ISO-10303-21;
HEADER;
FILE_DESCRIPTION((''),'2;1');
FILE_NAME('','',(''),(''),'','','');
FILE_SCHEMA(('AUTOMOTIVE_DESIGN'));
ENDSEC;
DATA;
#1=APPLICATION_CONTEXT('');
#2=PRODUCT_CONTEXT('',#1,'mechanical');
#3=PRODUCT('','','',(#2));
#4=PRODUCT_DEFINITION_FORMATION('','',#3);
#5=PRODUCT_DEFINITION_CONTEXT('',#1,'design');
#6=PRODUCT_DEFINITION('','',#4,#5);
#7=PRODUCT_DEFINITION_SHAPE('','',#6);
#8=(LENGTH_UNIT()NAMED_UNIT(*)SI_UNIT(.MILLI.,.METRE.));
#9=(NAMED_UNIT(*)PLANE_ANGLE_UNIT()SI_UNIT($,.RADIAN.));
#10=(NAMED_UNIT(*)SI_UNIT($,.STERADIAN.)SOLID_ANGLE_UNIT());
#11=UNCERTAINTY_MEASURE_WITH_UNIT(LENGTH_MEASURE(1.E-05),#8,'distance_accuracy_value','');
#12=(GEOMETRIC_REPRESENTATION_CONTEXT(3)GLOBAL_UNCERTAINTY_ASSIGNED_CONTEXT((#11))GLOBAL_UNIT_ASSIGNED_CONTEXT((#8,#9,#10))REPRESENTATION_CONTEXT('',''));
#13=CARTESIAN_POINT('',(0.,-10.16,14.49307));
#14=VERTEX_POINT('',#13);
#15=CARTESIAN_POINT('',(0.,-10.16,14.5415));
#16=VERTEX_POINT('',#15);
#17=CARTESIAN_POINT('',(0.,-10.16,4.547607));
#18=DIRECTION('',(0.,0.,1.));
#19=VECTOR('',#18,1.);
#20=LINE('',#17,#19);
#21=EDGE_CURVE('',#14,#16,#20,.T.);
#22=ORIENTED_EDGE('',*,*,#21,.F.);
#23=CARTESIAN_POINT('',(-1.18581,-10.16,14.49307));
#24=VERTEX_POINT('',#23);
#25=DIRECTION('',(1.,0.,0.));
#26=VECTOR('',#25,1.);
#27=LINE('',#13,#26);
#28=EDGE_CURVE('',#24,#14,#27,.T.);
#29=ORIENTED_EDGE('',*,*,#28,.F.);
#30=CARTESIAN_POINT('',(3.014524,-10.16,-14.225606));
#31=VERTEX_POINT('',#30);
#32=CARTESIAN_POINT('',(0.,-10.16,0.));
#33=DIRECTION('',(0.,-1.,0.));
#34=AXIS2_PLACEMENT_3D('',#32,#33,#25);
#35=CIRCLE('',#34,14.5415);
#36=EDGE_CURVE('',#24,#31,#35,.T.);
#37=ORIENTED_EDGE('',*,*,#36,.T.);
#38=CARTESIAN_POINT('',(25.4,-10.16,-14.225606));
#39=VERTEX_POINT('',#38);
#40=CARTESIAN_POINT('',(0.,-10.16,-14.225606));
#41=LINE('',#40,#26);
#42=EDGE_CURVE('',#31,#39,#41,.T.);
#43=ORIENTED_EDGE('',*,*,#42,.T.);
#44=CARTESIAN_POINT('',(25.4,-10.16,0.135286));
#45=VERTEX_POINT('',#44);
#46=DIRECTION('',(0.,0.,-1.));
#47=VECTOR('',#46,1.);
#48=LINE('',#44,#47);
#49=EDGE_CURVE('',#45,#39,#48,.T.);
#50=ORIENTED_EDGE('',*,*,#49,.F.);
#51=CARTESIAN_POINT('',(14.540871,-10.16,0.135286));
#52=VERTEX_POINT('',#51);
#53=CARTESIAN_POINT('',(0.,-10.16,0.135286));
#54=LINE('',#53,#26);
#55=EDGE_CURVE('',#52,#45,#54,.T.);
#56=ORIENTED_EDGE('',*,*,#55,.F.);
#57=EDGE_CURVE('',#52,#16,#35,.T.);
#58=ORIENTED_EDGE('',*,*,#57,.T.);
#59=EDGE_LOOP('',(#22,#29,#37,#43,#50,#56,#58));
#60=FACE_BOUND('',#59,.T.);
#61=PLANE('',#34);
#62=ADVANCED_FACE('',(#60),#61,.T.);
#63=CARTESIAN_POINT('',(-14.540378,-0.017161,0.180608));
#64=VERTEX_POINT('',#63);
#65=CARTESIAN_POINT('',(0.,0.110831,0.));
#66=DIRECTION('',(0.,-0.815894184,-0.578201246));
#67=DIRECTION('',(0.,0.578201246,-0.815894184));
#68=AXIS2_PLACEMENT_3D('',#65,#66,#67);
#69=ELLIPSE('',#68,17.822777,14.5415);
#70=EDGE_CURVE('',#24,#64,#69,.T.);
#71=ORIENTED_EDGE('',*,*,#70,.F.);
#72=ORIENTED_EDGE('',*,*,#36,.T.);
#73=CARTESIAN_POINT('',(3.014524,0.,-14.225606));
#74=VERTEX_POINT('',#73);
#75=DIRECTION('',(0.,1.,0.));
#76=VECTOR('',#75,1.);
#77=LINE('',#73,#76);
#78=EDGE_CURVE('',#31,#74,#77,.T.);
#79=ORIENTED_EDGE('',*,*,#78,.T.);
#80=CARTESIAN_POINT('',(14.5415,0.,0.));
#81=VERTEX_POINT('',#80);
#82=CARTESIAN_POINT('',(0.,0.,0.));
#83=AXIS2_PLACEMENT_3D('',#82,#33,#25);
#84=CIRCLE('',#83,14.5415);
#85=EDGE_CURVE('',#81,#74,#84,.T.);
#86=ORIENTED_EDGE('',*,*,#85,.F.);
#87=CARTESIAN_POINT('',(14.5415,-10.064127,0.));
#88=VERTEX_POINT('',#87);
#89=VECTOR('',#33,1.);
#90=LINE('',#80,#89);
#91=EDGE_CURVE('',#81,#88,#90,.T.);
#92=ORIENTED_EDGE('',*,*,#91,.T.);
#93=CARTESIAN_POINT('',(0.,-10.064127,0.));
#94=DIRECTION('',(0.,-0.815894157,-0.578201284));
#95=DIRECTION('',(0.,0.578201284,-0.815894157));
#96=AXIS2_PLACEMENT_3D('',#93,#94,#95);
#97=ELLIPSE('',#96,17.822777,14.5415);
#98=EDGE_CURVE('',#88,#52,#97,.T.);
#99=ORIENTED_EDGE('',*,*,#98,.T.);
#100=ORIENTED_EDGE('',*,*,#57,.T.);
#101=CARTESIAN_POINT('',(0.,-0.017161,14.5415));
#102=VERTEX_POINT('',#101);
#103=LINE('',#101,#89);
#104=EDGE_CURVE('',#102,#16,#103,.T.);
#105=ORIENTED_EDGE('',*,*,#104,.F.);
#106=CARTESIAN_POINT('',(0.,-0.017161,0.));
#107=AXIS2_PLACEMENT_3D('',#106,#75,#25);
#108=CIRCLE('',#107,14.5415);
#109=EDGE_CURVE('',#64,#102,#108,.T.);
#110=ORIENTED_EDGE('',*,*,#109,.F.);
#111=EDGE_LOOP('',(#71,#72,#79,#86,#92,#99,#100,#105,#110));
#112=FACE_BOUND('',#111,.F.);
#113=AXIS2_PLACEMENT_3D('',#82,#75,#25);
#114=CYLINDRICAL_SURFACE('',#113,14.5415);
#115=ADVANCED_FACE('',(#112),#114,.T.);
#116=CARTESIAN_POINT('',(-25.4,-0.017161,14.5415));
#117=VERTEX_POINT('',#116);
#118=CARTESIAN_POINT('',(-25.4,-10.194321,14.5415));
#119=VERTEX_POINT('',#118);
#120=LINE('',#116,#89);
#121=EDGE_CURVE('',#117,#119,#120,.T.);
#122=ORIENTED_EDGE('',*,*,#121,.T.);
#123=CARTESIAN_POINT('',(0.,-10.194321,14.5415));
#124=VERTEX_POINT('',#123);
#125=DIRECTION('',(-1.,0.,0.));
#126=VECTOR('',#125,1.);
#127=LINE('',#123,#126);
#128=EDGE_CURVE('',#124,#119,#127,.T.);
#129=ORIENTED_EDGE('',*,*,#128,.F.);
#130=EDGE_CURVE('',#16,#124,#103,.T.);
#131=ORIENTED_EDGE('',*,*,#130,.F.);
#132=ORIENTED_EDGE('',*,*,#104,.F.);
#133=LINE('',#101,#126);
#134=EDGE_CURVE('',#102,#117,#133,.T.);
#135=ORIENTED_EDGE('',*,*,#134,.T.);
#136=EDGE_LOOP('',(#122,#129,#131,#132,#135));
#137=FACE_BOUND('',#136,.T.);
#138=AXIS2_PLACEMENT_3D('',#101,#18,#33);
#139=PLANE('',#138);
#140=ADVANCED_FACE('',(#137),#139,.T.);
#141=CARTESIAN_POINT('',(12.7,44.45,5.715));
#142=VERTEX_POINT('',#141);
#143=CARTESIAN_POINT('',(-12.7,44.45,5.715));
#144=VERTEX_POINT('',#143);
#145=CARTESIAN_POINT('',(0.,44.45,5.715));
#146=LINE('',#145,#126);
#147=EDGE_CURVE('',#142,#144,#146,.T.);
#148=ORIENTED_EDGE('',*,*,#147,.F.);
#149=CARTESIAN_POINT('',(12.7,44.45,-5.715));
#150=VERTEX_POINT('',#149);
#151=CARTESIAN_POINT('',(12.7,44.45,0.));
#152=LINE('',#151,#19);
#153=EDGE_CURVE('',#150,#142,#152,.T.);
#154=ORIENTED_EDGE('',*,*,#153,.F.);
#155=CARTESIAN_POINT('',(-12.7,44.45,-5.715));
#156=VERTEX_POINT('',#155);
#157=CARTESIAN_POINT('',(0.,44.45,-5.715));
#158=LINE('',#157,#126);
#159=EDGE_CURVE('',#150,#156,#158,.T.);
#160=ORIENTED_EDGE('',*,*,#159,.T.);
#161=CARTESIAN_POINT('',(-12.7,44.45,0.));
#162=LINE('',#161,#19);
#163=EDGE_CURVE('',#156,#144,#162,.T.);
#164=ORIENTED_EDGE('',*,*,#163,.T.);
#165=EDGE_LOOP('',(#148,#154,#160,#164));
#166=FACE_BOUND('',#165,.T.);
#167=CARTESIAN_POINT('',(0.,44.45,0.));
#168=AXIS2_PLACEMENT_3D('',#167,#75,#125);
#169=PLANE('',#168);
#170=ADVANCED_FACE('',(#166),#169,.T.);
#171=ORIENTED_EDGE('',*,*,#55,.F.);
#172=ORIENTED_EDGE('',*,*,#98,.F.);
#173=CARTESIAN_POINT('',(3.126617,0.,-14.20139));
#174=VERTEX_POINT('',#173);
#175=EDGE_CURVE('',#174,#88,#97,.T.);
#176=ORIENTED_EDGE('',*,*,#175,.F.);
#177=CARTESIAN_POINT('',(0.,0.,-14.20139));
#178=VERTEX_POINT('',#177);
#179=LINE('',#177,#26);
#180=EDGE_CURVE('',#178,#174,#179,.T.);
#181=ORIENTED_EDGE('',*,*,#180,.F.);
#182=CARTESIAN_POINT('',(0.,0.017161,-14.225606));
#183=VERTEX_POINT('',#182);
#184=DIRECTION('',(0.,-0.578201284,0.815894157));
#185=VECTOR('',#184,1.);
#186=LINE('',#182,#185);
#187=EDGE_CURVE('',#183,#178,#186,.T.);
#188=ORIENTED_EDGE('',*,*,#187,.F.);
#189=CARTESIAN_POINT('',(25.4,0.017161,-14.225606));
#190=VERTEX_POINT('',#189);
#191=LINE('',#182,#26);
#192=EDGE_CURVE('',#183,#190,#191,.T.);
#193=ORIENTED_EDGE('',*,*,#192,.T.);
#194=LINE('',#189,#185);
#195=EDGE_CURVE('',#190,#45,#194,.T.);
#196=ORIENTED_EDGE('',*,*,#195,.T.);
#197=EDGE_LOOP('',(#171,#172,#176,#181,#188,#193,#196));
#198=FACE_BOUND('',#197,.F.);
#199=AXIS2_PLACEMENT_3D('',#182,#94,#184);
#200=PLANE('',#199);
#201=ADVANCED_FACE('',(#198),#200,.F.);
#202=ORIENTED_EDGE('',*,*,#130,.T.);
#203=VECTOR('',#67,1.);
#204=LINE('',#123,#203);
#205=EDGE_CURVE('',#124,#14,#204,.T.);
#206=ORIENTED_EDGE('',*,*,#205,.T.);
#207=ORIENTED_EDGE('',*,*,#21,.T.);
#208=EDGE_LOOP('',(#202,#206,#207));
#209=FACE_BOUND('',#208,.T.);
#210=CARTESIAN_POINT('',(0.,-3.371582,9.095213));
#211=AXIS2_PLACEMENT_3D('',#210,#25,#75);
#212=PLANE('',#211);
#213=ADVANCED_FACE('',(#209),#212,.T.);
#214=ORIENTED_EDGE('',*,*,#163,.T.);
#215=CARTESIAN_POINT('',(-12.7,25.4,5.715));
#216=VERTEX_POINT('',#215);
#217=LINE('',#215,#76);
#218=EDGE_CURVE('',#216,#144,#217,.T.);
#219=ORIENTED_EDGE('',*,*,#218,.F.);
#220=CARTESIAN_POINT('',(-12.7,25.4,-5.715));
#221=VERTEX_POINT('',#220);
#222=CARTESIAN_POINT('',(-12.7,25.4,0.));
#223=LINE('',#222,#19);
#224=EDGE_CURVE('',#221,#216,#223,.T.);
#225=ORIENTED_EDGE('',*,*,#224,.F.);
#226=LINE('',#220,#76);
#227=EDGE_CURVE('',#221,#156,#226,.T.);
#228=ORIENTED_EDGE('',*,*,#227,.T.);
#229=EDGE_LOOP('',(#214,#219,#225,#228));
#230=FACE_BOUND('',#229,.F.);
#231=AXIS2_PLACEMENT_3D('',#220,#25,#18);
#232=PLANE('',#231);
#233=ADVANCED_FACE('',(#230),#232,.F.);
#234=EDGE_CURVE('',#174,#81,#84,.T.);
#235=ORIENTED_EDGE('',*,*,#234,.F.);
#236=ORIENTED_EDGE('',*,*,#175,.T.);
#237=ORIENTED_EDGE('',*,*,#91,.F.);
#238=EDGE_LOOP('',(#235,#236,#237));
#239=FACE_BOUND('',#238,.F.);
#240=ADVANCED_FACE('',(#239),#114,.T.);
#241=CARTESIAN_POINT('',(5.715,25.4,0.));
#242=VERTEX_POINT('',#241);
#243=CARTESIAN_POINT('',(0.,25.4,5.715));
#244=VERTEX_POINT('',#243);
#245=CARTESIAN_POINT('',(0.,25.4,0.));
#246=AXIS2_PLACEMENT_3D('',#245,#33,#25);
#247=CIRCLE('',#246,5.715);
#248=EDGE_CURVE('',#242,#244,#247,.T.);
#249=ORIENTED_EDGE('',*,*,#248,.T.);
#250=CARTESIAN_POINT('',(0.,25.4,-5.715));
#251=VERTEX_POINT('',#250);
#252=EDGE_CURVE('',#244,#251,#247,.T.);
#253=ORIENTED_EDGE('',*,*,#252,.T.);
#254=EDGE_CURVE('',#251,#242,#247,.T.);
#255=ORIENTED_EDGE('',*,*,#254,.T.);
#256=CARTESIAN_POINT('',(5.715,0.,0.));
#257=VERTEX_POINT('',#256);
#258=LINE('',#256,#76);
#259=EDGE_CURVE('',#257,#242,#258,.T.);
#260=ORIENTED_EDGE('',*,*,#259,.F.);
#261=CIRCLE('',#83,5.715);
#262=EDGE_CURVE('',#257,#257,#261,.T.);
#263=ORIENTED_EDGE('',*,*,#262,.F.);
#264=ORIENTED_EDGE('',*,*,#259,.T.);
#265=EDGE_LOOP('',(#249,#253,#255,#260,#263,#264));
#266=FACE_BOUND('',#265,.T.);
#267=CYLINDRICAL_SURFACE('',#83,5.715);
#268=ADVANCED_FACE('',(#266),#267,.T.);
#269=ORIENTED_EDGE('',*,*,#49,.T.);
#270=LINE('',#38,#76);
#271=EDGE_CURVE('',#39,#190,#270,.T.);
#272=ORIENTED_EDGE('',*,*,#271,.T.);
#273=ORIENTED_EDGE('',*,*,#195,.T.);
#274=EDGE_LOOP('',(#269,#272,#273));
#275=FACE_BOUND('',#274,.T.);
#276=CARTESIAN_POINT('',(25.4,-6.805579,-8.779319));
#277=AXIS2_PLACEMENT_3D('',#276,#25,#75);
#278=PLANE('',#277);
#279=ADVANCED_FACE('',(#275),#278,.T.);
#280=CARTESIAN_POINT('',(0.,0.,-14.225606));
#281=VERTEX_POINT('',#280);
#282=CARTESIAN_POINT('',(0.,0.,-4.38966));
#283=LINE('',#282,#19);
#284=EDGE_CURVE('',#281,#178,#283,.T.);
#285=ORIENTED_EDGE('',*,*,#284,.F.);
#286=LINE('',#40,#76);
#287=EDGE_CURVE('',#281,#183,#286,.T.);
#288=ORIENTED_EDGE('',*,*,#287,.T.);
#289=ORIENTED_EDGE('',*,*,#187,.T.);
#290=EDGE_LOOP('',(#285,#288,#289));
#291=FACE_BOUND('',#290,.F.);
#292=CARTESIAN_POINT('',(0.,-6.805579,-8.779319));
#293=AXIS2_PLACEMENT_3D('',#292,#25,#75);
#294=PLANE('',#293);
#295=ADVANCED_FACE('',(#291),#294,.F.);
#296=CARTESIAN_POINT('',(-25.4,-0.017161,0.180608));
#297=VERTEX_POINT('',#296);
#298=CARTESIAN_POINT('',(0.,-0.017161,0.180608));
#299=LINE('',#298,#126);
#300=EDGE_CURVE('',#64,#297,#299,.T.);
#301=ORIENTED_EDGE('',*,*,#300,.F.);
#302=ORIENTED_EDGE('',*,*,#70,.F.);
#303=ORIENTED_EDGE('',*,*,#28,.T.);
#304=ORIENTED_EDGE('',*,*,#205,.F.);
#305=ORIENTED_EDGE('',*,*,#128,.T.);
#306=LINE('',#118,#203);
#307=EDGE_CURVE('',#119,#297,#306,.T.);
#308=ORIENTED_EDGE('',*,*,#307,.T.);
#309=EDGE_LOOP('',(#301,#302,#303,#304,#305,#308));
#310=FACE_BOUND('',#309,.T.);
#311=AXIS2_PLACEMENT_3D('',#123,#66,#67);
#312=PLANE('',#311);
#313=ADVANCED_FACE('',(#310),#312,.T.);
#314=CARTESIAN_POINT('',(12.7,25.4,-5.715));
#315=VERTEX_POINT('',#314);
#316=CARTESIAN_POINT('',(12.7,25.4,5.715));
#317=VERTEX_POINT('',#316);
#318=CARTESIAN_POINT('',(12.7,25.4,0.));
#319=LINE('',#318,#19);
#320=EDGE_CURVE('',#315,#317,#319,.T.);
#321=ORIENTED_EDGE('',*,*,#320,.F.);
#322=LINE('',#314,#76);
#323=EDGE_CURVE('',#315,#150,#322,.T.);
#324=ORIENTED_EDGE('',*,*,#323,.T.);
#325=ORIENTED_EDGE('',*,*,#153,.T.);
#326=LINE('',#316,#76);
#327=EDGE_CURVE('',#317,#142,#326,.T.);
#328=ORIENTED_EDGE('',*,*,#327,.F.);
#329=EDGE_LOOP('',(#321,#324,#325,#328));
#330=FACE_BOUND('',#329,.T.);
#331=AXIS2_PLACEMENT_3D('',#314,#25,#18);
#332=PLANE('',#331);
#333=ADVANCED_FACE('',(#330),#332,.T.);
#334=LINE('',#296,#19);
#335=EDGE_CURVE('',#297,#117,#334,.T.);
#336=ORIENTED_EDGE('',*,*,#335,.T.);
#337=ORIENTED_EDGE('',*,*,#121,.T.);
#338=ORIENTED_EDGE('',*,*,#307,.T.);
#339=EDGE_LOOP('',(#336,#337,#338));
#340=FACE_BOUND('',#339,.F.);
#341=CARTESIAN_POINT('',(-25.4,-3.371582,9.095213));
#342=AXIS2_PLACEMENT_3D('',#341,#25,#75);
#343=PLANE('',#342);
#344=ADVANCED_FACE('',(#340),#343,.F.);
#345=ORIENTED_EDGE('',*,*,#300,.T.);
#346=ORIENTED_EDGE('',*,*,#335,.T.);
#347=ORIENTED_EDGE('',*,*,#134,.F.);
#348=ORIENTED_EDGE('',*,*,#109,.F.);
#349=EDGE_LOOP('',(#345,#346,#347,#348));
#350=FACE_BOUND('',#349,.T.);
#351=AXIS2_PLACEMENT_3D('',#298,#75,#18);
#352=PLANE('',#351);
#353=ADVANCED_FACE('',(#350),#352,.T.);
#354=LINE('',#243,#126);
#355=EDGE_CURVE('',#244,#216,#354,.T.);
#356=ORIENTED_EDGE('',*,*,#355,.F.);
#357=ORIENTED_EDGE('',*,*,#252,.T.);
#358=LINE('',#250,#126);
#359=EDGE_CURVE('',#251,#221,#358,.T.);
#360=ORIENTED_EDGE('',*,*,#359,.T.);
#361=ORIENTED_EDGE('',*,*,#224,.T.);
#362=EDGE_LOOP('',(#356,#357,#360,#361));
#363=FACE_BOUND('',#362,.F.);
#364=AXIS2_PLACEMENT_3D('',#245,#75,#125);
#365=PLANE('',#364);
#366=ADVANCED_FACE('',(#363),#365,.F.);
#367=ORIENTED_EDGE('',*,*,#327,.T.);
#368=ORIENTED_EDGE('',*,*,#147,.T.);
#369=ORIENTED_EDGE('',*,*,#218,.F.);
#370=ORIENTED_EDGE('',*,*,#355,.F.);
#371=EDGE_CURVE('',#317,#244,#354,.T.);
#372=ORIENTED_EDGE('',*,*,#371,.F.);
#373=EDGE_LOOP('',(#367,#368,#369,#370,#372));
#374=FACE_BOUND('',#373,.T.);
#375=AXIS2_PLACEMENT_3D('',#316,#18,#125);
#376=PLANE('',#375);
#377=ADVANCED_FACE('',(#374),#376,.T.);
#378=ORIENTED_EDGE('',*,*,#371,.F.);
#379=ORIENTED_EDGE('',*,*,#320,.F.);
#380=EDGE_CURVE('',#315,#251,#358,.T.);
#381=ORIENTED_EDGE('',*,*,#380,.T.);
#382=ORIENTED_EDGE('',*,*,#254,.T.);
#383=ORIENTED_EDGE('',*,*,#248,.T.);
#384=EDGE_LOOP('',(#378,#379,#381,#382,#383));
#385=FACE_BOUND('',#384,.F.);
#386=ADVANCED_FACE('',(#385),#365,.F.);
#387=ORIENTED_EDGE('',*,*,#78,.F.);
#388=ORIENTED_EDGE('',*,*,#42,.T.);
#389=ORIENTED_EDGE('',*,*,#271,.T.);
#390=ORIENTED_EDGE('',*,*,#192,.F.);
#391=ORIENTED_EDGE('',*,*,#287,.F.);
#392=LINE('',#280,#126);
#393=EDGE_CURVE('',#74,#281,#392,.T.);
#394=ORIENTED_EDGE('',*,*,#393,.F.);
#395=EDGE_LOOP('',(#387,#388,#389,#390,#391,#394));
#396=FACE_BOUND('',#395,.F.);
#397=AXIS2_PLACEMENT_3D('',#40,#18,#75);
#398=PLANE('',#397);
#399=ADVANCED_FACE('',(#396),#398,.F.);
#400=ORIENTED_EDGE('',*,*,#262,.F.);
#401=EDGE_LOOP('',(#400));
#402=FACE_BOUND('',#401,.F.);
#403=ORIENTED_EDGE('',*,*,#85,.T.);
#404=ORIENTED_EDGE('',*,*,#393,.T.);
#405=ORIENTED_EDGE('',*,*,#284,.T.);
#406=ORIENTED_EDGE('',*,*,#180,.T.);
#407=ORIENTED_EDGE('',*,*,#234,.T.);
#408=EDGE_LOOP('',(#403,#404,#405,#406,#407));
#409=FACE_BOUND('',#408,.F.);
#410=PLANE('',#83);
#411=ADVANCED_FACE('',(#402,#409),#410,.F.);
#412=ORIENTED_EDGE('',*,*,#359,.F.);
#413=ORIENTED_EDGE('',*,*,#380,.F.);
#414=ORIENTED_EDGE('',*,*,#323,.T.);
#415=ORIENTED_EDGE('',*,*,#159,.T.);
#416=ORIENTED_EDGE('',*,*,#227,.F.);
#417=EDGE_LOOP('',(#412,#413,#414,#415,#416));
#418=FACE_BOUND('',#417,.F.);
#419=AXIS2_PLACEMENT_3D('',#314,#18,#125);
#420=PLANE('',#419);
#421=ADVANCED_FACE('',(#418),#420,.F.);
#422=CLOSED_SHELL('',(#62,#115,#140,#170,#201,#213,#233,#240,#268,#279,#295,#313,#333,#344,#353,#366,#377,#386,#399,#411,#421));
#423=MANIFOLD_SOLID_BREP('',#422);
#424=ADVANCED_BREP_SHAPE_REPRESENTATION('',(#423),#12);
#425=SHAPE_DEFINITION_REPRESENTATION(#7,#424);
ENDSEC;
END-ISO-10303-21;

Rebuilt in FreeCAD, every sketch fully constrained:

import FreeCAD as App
import Part
import Sketcher

V = App.Vector
Q = App.Units.Quantity


def add_polygon(sketch, points):
    """Adds a closed chain of lines whose ends are joined by coincident constraints."""
    first, n = sketch.GeometryCount, len(points)
    for a, b in zip(points, points[1:] + points[:1]):
        sketch.addGeometry(Part.LineSegment(App.Vector(*a, 0), App.Vector(*b, 0)), False)
    for i in range(n):
        sketch.addConstraint(Sketcher.Constraint("Coincident", first + i, 2, first + (i + 1) % n, 1))

doc = App.newDocument("Part")
body = doc.addObject("PartDesign::Body", "Body")

sketch1 = body.newObject("Sketcher::SketchObject", "Sketch")
sketch1.AttachmentSupport = (doc.getObject("XZ_Plane"), [""])
sketch1.MapMode = "FlatFace"
sketch1.addGeometry(Part.Circle(V(0, 0, 0), V(0, 0, 1), 15), False)
sketch1.addConstraint(Sketcher.Constraint("Coincident", 0, 3, -1, 1))
sketch1.addConstraint(Sketcher.Constraint("Diameter", 0, Q("1.145 in")))
pad1 = body.newObject("PartDesign::Pad", "Pad")
pad1.Profile = sketch1
pad1.Length = Q("0.4 in")

sketch2 = body.newObject("Sketcher::SketchObject", "Sketch001")
sketch2.AttachmentSupport = (doc.getObject("YZ_Plane"), [""])
sketch2.MapMode = "FlatFace"
add_polygon(sketch2, [(-10, -14), (0, -14), (-10, 0)])
sketch2.addConstraint(Sketcher.Constraint("Horizontal", 0))
sketch2.addConstraint(Sketcher.Constraint("Vertical", 2))
sketch2.addConstraint(Sketcher.Constraint("DistanceX", 1, 2, -1, 1, Q("0.4 in")))
sketch2.addConstraint(Sketcher.Constraint("DistanceX", 0, 1, 0, 2, Q("10.177161 mm")))
sketch2.addConstraint(Sketcher.Constraint("DistanceY", 2, 2, 2, 1, Q("14.360892 mm")))
sketch2.addConstraint(Sketcher.Constraint("DistanceY", 0, 2, -1, 1, Q("14.225606 mm")))
pad2 = body.newObject("PartDesign::Pad", "Pad001")
pad2.Profile = sketch2
pad2.Length = Q("1 in")

sketch3 = body.newObject("Sketcher::SketchObject", "Sketch002")
sketch3.AttachmentSupport = (doc.getObject("YZ_Plane"), [""])
sketch3.MapMode = "FlatFace"
add_polygon(sketch3, [(0, 15), (-10, 15), (0, 0)])
sketch3.addConstraint(Sketcher.Constraint("Horizontal", 0))
sketch3.addConstraint(Sketcher.Constraint("Vertical", 2))
sketch3.addConstraint(Sketcher.Constraint("DistanceY", -1, 1, 0, 2, Q("0.5725 in")))
sketch3.addConstraint(Sketcher.Constraint("DistanceX", 0, 2, 0, 1, Q("10.17716 mm")))
sketch3.addConstraint(Sketcher.Constraint("DistanceY", 2, 1, 2, 2, Q("14.360892 mm")))
sketch3.addConstraint(Sketcher.Constraint("DistanceX", 0, 2, -1, 1, Q("10.194321 mm")))
pad3 = body.newObject("PartDesign::Pad", "Pad002")
pad3.Profile = sketch3
pad3.Length = Q("1 in")
pad3.Reversed = True

sketch4 = body.newObject("Sketcher::SketchObject", "Sketch003")
sketch4.AttachmentSupport = (doc.getObject("XZ_Plane"), [""])
sketch4.MapMode = "FlatFace"
sketch4.addGeometry(Part.Circle(V(0, 0, 0), V(0, 0, 1), 6), False)
sketch4.addConstraint(Sketcher.Constraint("Coincident", 0, 3, -1, 1))
sketch4.addConstraint(Sketcher.Constraint("Diameter", 0, Q("0.45 in")))
pad4 = body.newObject("PartDesign::Pad", "Pad003")
pad4.Profile = sketch4
pad4.Length = Q("1 in")
pad4.Reversed = True

sketch5 = body.newObject("Sketcher::SketchObject", "Sketch004")
sketch5.AttachmentSupport = (doc.getObject("XZ_Plane"), [""])
sketch5.MapMode = "FlatFace"
sketch5.AttachmentOffset = App.Placement(V(0, 0, -1 * 25.4), App.Rotation())
add_polygon(sketch5, [(13, 6), (13, -6), (-13, -6), (-13, 6)])
sketch5.addConstraint(Sketcher.Constraint("Vertical", 0))
sketch5.addConstraint(Sketcher.Constraint("Horizontal", 1))
sketch5.addConstraint(Sketcher.Constraint("Vertical", 2))
sketch5.addConstraint(Sketcher.Constraint("Horizontal", 3))
sketch5.addConstraint(Sketcher.Constraint("Symmetric", 0, 2, 2, 2, -1, 1))
sketch5.addConstraint(Sketcher.Constraint("DistanceX", 1, 2, 1, 1, Q("1 in")))
sketch5.addConstraint(Sketcher.Constraint("DistanceY", 0, 2, 0, 1, Q("0.45 in")))
pad5 = body.newObject("PartDesign::Pad", "Pad004")
pad5.Profile = sketch5
pad5.Length = Q("0.75 in")
pad5.Reversed = True

doc.recompute()
